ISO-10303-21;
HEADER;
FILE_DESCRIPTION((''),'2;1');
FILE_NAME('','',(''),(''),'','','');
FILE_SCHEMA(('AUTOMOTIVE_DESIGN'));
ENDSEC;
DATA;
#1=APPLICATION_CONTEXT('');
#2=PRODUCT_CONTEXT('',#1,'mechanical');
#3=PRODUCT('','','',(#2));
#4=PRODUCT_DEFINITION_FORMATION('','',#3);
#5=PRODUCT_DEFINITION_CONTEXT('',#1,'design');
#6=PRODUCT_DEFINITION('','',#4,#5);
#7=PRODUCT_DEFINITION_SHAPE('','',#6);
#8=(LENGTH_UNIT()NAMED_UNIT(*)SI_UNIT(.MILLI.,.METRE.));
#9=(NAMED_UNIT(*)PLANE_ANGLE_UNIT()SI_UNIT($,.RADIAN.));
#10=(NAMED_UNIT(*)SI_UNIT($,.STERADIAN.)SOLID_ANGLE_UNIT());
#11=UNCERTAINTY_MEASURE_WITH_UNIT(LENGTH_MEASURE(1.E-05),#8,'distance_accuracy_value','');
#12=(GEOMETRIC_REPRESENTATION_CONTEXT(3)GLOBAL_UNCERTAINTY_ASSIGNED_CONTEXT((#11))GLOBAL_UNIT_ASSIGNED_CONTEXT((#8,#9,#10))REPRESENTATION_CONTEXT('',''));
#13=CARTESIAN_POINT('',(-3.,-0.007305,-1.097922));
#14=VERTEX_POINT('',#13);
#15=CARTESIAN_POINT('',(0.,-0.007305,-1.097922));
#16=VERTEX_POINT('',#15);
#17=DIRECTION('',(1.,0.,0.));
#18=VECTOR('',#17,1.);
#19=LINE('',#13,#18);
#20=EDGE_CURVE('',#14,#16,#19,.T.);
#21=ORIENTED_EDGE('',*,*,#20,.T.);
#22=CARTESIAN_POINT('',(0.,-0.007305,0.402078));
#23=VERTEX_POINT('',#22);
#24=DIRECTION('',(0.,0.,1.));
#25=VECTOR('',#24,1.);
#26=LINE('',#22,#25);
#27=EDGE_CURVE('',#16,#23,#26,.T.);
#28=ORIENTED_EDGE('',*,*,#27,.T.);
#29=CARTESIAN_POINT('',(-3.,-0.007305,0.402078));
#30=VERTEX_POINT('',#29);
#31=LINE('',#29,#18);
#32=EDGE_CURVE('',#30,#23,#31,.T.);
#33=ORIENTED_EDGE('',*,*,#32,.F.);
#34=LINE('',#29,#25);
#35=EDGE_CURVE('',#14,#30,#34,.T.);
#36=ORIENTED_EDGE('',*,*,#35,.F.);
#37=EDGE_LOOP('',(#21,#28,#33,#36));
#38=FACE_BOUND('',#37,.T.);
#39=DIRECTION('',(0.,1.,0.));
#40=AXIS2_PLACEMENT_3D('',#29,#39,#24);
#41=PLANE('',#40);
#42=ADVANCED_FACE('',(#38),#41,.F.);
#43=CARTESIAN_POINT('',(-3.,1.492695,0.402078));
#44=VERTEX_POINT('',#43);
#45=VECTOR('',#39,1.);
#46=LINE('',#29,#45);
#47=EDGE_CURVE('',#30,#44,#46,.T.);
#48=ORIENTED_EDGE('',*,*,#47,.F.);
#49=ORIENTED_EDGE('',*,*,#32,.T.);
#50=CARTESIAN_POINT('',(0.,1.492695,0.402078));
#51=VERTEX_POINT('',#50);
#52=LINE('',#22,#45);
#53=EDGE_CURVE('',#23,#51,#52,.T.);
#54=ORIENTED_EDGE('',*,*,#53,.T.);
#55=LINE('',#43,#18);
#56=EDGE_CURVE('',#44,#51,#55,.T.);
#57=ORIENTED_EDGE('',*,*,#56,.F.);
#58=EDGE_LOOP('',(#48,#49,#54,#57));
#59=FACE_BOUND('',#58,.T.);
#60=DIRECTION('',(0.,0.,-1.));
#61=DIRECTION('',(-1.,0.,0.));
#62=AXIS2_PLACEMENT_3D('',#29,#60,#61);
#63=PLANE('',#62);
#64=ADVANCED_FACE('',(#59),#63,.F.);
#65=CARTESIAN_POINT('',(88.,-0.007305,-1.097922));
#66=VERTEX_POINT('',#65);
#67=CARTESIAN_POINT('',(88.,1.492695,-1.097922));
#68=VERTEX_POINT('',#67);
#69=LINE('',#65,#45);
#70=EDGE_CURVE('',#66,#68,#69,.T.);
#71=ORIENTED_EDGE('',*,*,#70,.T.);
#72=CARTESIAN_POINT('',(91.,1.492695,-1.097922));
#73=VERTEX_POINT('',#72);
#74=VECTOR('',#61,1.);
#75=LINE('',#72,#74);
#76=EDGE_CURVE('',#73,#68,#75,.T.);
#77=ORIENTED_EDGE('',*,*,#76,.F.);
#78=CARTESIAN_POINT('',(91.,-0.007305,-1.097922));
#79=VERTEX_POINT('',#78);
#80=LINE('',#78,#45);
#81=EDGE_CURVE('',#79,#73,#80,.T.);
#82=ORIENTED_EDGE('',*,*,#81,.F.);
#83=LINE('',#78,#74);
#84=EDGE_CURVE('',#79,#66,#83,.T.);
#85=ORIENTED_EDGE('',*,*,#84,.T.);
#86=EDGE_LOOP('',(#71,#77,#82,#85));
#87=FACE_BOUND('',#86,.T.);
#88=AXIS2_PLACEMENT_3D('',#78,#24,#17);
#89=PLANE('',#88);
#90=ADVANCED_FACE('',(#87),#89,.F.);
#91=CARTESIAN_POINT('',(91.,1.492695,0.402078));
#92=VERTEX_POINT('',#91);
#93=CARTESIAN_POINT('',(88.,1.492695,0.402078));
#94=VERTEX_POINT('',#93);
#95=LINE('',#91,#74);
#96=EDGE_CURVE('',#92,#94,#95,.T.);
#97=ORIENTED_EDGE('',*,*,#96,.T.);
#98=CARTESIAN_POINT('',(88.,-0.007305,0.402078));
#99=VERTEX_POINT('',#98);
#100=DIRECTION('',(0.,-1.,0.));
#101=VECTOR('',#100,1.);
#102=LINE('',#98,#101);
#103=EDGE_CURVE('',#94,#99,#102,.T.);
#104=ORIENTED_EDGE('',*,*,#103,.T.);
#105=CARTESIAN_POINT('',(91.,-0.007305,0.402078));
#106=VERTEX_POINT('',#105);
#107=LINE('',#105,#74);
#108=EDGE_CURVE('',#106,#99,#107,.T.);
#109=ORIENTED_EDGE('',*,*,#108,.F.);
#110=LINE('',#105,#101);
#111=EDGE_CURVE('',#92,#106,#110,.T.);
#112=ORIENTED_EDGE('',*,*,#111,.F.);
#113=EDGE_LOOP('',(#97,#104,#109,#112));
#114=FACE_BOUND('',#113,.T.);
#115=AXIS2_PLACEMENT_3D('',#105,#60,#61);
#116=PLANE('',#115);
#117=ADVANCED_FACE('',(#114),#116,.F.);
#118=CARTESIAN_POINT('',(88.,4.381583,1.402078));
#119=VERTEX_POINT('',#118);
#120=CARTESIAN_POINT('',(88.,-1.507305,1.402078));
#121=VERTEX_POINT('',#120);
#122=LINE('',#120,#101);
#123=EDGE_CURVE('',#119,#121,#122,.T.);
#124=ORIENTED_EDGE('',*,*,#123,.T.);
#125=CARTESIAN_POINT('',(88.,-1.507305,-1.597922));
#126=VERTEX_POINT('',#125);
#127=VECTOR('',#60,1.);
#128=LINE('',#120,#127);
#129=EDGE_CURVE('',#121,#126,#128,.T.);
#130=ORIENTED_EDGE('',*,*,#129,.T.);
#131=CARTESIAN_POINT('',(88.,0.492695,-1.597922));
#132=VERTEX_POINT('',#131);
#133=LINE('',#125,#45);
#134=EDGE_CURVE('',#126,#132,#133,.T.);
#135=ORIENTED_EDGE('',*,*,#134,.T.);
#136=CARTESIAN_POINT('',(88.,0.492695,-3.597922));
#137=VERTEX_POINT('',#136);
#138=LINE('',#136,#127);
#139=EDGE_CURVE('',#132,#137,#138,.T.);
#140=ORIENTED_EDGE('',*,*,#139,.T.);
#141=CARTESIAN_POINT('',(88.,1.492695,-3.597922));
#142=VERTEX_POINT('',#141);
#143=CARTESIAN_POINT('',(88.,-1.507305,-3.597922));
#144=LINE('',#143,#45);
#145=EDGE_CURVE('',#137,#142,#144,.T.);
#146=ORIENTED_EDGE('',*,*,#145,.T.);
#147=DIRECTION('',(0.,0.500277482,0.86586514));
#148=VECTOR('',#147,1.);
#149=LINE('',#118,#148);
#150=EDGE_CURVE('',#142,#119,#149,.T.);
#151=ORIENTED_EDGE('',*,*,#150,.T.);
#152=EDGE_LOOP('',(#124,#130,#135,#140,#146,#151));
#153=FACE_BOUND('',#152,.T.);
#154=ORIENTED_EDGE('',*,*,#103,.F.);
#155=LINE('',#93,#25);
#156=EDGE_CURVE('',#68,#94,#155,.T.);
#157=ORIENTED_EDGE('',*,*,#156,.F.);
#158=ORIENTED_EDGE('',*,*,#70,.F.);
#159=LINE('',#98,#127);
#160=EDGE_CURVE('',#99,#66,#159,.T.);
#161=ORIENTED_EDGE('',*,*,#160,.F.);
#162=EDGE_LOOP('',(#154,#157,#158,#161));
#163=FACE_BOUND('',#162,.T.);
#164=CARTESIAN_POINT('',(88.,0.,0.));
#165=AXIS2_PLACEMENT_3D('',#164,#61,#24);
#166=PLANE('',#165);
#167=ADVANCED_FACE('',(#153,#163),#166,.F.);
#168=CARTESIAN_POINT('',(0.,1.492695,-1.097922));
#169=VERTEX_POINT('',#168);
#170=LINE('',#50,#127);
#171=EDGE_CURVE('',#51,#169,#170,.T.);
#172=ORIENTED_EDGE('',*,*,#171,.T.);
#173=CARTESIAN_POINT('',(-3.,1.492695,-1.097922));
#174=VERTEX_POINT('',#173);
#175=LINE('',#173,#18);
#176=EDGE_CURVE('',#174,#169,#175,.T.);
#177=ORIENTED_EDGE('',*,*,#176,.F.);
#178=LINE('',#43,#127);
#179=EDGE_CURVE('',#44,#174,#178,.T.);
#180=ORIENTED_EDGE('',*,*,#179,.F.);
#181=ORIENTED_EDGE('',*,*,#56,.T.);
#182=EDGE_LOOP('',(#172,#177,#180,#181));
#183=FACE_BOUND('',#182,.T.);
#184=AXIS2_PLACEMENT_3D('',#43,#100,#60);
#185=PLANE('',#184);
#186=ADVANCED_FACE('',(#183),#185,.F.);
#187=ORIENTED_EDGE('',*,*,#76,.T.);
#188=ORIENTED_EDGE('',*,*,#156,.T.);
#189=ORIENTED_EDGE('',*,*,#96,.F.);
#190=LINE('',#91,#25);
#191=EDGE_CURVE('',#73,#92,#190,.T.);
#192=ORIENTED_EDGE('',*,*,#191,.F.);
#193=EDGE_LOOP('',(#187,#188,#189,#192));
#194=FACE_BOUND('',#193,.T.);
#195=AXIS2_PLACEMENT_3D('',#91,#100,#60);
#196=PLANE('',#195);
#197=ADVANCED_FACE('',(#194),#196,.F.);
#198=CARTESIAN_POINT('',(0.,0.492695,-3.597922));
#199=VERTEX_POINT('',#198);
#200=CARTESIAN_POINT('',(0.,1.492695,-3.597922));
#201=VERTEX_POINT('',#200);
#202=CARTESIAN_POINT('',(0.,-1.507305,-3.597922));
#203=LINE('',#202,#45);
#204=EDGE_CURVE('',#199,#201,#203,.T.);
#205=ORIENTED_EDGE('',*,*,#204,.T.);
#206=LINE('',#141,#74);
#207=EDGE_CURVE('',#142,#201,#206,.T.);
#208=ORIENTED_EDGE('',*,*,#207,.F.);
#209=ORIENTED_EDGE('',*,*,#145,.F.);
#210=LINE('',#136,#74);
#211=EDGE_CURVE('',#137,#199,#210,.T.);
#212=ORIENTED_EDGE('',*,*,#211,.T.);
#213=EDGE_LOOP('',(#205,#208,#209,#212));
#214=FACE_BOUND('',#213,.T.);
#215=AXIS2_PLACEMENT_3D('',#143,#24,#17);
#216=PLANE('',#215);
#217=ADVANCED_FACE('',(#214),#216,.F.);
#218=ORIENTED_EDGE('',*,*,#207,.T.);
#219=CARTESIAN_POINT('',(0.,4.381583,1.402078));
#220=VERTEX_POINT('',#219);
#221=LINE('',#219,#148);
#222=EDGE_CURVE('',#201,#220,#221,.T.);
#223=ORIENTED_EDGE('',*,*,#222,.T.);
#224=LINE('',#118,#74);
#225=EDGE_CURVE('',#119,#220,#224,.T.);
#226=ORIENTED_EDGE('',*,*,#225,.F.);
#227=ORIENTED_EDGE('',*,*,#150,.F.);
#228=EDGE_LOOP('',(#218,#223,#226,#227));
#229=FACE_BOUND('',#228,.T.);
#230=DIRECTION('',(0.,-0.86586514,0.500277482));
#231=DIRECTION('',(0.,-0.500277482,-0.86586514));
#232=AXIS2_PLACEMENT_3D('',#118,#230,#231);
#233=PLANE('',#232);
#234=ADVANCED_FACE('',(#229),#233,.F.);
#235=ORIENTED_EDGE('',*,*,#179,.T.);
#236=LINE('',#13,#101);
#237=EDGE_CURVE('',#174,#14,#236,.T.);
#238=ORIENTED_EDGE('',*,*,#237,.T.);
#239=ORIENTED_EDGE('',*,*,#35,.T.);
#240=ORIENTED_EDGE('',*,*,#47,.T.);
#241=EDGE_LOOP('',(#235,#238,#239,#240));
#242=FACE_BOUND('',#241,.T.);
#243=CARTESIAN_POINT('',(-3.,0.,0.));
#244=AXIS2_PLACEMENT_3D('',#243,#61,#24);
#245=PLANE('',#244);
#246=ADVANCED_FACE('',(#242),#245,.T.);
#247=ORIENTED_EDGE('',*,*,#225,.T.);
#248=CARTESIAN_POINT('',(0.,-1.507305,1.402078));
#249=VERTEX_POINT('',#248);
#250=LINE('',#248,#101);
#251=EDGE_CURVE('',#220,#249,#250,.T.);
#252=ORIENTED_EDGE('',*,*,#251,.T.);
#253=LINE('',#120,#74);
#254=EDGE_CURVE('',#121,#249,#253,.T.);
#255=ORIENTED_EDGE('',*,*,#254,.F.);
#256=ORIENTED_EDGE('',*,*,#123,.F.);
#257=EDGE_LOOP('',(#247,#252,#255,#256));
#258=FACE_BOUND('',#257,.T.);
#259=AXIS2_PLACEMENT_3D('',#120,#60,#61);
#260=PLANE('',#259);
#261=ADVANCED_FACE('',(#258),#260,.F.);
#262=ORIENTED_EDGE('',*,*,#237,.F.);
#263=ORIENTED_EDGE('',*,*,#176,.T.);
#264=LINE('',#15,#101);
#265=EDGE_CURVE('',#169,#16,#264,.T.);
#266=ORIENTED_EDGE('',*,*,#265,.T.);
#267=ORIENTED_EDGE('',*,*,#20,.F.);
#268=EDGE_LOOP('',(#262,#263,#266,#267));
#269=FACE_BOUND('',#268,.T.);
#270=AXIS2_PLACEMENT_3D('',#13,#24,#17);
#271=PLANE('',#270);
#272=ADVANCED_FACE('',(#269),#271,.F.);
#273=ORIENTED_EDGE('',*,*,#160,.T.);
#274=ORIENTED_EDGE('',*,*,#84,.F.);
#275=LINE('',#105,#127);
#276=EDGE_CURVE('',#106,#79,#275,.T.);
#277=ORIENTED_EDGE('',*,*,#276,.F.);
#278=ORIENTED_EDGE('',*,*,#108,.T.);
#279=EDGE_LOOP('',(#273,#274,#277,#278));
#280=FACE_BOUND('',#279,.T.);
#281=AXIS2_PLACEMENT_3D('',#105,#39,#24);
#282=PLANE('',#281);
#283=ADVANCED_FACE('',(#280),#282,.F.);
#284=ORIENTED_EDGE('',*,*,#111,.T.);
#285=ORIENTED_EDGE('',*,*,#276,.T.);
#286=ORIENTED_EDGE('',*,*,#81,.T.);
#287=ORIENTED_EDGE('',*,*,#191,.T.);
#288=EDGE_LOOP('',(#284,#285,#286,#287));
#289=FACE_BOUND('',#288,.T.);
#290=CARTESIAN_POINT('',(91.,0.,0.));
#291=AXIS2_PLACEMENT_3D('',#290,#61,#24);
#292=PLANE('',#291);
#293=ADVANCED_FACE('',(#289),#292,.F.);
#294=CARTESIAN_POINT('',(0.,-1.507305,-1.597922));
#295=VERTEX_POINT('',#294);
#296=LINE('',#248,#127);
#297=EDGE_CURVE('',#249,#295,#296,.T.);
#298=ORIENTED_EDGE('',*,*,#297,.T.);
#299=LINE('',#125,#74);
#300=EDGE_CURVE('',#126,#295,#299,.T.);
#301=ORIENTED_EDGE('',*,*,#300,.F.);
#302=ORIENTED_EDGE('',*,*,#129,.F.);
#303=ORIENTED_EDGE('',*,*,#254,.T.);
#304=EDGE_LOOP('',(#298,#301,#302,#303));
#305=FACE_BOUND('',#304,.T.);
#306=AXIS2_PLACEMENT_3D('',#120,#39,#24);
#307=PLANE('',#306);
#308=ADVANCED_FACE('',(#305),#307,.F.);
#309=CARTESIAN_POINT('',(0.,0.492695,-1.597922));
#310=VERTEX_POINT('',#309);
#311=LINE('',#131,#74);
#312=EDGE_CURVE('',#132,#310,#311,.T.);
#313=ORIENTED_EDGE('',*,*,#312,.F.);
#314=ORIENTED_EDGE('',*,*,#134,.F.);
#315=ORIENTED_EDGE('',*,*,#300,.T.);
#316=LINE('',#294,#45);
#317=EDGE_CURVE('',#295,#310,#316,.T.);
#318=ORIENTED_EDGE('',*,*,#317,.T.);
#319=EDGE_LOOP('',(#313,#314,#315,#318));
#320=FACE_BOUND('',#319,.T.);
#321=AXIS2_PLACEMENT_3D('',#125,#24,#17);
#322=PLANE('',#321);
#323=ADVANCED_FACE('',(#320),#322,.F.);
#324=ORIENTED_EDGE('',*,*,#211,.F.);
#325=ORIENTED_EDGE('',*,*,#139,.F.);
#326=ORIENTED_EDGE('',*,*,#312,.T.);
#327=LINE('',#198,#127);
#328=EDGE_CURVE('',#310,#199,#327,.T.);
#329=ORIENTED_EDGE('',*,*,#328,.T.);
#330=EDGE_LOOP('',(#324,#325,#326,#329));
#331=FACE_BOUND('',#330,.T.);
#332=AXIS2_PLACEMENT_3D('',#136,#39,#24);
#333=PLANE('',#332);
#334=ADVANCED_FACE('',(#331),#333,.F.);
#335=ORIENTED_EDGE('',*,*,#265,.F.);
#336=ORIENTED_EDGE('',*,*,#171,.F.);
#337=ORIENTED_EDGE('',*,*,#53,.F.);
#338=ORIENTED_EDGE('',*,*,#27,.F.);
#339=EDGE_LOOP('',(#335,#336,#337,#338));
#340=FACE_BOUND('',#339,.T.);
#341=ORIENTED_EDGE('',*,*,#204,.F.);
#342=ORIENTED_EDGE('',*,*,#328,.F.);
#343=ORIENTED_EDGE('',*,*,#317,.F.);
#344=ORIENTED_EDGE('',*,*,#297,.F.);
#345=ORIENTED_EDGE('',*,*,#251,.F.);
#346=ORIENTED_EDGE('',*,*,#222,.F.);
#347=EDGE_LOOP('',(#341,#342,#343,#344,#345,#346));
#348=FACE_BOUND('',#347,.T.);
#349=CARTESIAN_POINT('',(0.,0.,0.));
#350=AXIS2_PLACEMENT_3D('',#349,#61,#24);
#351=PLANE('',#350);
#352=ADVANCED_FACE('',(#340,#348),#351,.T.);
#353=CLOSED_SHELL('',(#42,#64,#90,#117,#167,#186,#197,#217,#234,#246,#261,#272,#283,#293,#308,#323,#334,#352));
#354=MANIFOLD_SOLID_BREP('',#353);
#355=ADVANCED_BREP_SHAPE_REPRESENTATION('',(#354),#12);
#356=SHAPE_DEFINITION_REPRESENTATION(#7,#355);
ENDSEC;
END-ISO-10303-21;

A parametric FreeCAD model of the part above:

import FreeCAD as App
import Part
import Sketcher

V = App.Vector
Q = App.Units.Quantity

doc = App.newDocument("Part")
body = doc.addObject("PartDesign::Body", "Body")

# Sketch on YZ plane
sketch1 = body.newObject("Sketcher::SketchObject", "Sketch")
sketch1.AttachmentSupport = (doc.getObject("YZ_Plane"), [""])
sketch1.MapMode = "FlatFace"
sketch1.addGeometry([
    Part.LineSegment(V(-1.5, 1.4, 0), V(-1.5, -3.6, 0)),
    Part.LineSegment(V(-1.5, -3.6, 0), V(1.5, -3.6, 0)),
    Part.LineSegment(V(1.5, -3.6, 0), V(4.4, 1.4, 0)),
    Part.LineSegment(V(4.4, 1.4, 0), V(-1.5, 1.4, 0)),
], False)
sketch1.addConstraint([
    Sketcher.Constraint("Coincident", 0, 2, 1, 1),
    Sketcher.Constraint("Coincident", 1, 2, 2, 1),
    Sketcher.Constraint("Coincident", 2, 2, 3, 1),
    Sketcher.Constraint("Coincident", 3, 2, 0, 1),
    Sketcher.Constraint("Vertical", 0),
    Sketcher.Constraint("Horizontal", 1),
    Sketcher.Constraint("Horizontal", 3),
    Sketcher.Constraint("DistanceX", 1, 1, 1, 2, Q("3 mm")),
    Sketcher.Constraint("DistanceY", 0, 2, 0, 1, Q("5 mm")),
    Sketcher.Constraint("Distance", 2, Q("5.774571 mm")),
    Sketcher.Constraint("DistanceX", 0, 2, -1, 1, Q("1.507305 mm")),
    Sketcher.Constraint("DistanceY", 0, 2, -1, 1, Q("3.597922 mm")),
])
pad1 = body.newObject("PartDesign::Pad", "Pad")
pad1.Profile = sketch1
pad1.Length = 88

# Sketch on YZ plane
sketch2 = body.newObject("Sketcher::SketchObject", "Sketch001")
sketch2.AttachmentSupport = (doc.getObject("YZ_Plane"), [""])
sketch2.MapMode = "FlatFace"
sketch2.addGeometry([
    Part.LineSegment(V(0.5, -3.6, 0), V(-1.5, -3.6, 0)),
    Part.LineSegment(V(-1.5, -3.6, 0), V(-1.5, -1.6, 0)),
    Part.LineSegment(V(-1.5, -1.6, 0), V(0.5, -1.6, 0)),
    Part.LineSegment(V(0.5, -1.6, 0), V(0.5, -3.6, 0)),
], False)
sketch2.addConstraint([
    Sketcher.Constraint("Coincident", 0, 2, 1, 1),
    Sketcher.Constraint("Coincident", 1, 2, 2, 1),
    Sketcher.Constraint("Coincident", 2, 2, 3, 1),
    Sketcher.Constraint("Coincident", 3, 2, 0, 1),
    Sketcher.Constraint("Horizontal", 0),
    Sketcher.Constraint("Vertical", 1),
    Sketcher.Constraint("Horizontal", 2),
    Sketcher.Constraint("Vertical", 3),
    Sketcher.Constraint("Equal", 2, 1),
    Sketcher.Constraint("DistanceX", 0, 2, 0, 1, Q("2 mm")),
    Sketcher.Constraint("DistanceX", 0, 2, -1, 1, Q("1.507305 mm")),
    Sketcher.Constraint("DistanceY", 0, 2, -1, 1, Q("3.597922 mm")),
])
pocket1 = body.newObject("PartDesign::Pocket", "Pocket")
pocket1.Profile = sketch2
pocket1.Length = 88
pocket1.Reversed = True

# Sketch on YZ plane
sketch3 = body.newObject("Sketcher::SketchObject", "Sketch002")
sketch3.AttachmentSupport = (doc.getObject("YZ_Plane"), [""])
sketch3.MapMode = "FlatFace"
sketch3.addGeometry([
    Part.LineSegment(V(1.5, -1.1, 0), V(0, -1.1, 0)),
    Part.LineSegment(V(0, -1.1, 0), V(0, 0.4, 0)),
    Part.LineSegment(V(0, 0.4, 0), V(1.5, 0.4, 0)),
    Part.LineSegment(V(1.5, 0.4, 0), V(1.5, -1.1, 0)),
], False)
sketch3.addConstraint([
    Sketcher.Constraint("Coincident", 0, 2, 1, 1),
    Sketcher.Constraint("Coincident", 1, 2, 2, 1),
    Sketcher.Constraint("Coincident", 2, 2, 3, 1),
    Sketcher.Constraint("Coincident", 3, 2, 0, 1),
    Sketcher.Constraint("Horizontal", 0),
    Sketcher.Constraint("Vertical", 1),
    Sketcher.Constraint("Horizontal", 2),
    Sketcher.Constraint("Vertical", 3),
    Sketcher.Constraint("Equal", 2, 1),
    Sketcher.Constraint("DistanceX", 0, 2, 0, 1, Q("1.5 mm")),
    Sketcher.Constraint("DistanceX", 0, 2, -1, 1, Q("0.007305 mm")),
    Sketcher.Constraint("DistanceY", 0, 2, -1, 1, Q("1.097922 mm")),
])
pad2 = body.newObject("PartDesign::Pad", "Pad001")
pad2.Profile = sketch3
pad2.Length = 3
pad2.Reversed = True

# Sketch on YZ plane
sketch4 = body.newObject("Sketcher::SketchObject", "Sketch003")
sketch4.AttachmentSupport = (doc.getObject("YZ_Plane"), [""])
sketch4.MapMode = "FlatFace"
sketch4.AttachmentOffset = App.Placement(V(0, 0, 88), App.Rotation())
sketch4.addGeometry([
    Part.LineSegment(V(1.5, 0.4, 0), V(0, 0.4, 0)),
    Part.LineSegment(V(0, 0.4, 0), V(0, -1.1, 0)),
    Part.LineSegment(V(0, -1.1, 0), V(1.5, -1.1, 0)),
    Part.LineSegment(V(1.5, -1.1, 0), V(1.5, 0.4, 0)),
], False)
sketch4.addConstraint([
    Sketcher.Constraint("Coincident", 0, 2, 1, 1),
    Sketcher.Constraint("Coincident", 1, 2, 2, 1),
    Sketcher.Constraint("Coincident", 2, 2, 3, 1),
    Sketcher.Constraint("Coincident", 3, 2, 0, 1),
    Sketcher.Constraint("Horizontal", 0),
    Sketcher.Constraint("Vertical", 1),
    Sketcher.Constraint("Horizontal", 2),
    Sketcher.Constraint("Vertical", 3),
    Sketcher.Constraint("Equal", 2, 1),
    Sketcher.Constraint("DistanceX", 0, 2, 0, 1, Q("1.5 mm")),
    Sketcher.Constraint("DistanceX", 0, 2, -1, 1, Q("0.007305 mm")),
    Sketcher.Constraint("DistanceY", -1, 1, 0, 2, Q("0.402078 mm")),
])
pad3 = body.newObject("PartDesign::Pad", "Pad002")
pad3.Profile = sketch4
pad3.Length = 3

doc.recompute()
